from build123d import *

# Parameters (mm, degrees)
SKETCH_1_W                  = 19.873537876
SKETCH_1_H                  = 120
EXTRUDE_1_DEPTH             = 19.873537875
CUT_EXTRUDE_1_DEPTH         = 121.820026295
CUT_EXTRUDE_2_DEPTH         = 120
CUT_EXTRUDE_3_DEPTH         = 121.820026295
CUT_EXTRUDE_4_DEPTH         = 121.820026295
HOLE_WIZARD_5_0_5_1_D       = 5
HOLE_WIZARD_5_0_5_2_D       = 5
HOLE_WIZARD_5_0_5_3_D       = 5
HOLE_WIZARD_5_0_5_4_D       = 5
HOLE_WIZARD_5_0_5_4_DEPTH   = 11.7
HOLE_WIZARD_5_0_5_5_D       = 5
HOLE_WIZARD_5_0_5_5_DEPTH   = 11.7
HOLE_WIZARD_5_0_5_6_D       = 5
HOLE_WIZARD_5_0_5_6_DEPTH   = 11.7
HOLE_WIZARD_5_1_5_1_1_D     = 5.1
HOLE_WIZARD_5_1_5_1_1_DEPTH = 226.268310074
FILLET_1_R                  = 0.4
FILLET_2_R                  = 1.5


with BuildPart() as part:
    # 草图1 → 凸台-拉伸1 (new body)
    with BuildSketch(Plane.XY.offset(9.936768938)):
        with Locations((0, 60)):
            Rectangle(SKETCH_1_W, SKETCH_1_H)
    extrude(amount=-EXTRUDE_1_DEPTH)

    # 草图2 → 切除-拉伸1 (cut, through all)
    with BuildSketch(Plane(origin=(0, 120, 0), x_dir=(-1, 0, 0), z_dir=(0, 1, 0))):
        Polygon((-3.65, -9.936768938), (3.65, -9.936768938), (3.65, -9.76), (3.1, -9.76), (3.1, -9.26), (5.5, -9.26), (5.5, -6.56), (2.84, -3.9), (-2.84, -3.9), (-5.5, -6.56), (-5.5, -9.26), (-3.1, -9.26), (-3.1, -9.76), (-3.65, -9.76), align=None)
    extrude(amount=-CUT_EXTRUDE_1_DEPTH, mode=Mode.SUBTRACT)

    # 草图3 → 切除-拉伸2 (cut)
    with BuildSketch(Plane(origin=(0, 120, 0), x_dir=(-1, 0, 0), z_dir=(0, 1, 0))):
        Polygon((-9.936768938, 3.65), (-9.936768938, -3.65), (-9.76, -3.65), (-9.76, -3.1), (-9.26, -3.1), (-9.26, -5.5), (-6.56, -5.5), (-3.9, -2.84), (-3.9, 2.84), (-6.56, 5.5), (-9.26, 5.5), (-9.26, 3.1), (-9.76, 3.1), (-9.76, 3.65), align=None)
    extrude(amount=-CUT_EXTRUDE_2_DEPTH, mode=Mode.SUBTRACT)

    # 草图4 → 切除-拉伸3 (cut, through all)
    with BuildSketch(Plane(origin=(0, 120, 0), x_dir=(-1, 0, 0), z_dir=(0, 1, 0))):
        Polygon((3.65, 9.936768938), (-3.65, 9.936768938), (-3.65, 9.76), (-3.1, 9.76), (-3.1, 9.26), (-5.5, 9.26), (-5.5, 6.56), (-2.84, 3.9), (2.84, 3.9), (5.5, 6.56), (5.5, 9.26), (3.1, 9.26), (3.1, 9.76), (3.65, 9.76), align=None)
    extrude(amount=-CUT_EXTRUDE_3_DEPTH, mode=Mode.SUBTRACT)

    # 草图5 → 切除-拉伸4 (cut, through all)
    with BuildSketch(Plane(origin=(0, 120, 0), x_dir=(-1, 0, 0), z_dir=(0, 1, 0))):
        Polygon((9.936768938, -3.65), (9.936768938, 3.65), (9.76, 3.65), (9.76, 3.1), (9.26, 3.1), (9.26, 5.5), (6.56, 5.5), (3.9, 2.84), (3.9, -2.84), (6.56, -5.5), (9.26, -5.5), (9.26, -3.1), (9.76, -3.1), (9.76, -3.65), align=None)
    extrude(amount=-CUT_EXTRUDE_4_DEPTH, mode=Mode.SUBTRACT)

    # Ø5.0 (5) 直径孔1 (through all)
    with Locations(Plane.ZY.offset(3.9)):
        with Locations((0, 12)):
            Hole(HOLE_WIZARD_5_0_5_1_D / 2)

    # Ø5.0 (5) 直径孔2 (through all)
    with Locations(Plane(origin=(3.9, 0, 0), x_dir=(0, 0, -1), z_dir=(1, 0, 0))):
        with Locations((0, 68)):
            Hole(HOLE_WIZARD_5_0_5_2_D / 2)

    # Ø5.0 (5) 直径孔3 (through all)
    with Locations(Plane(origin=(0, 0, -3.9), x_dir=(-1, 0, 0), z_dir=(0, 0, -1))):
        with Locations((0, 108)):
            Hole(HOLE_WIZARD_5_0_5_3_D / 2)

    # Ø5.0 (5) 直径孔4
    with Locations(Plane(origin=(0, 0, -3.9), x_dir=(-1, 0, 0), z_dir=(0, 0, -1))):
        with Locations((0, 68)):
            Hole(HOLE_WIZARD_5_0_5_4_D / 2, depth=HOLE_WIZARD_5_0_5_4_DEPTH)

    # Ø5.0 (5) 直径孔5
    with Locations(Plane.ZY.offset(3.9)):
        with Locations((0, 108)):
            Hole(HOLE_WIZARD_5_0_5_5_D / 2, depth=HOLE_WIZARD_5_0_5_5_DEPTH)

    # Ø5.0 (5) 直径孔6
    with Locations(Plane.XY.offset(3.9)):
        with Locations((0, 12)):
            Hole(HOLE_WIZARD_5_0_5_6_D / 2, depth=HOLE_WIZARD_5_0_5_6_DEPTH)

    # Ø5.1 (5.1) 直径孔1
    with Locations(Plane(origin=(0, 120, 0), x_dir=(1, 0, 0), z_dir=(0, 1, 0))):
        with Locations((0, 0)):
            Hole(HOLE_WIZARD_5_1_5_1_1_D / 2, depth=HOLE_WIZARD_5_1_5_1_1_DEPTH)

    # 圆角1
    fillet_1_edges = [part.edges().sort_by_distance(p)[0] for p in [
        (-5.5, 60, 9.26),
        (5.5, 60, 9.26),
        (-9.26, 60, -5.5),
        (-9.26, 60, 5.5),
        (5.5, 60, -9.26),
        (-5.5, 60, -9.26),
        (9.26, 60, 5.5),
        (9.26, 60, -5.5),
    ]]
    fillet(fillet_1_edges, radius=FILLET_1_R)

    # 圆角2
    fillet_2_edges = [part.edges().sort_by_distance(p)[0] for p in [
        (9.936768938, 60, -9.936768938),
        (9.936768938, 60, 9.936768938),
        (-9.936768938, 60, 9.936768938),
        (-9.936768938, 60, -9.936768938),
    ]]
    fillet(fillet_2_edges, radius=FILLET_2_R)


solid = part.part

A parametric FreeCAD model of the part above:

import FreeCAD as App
import Part
import Sketcher
from FreeCAD import Vector


def edges_at(feature, points):
    """Names of the edges that pass closest to the given points."""
    edges = feature.Shape.Edges
    near = lambda p: min(range(len(edges)), key=lambda i: edges[i].distToShape(Part.Vertex(*p))[0])
    return sorted({f"Edge{near(p) + 1}" for p in points})


def add_polygon(sketch, points):
    """Adds a closed chain of lines whose ends are joined by coincident constraints."""
    first, n = sketch.GeometryCount, len(points)
    for a, b in zip(points, points[1:] + points[:1]):
        sketch.addGeometry(Part.LineSegment(App.Vector(*a, 0), App.Vector(*b, 0)), False)
    for i in range(n):
        sketch.addConstraint(Sketcher.Constraint("Coincident", first + i, 2, first + (i + 1) % n, 1))

doc = App.newDocument("Part")
body = doc.addObject("PartDesign::Body", "Body")

# Sketch on XY plane
sketch1 = body.newObject("Sketcher::SketchObject", "Sketch")
sketch1.AttachmentSupport = (doc.getObject("XY_Plane"), [""])
sketch1.MapMode = "FlatFace"
sketch1.AttachmentOffset = App.Placement(Vector(0, 0, 9.936769), App.Rotation())
add_polygon(sketch1, [(-10, 120), (-10, 0), (10, 0), (10, 120)])  # lines 0-3
sketch1.addConstraint([
    Sketcher.Constraint("Vertical", 0),
    Sketcher.Constraint("Horizontal", 1),
    Sketcher.Constraint("Vertical", 2),
    Sketcher.Constraint("Horizontal", 3),
    Sketcher.Constraint("Symmetric", 0, 2, 1, 2, -1, 1),
    Sketcher.Constraint("DistanceY", 0, 2, 0, 1, 120.0),
    Sketcher.Constraint("DistanceX", 1, 1, 1, 2, 19.873538),
])
pad1 = body.newObject("PartDesign::Pad", "Pad")
pad1.Profile = sketch1
pad1.Length = 19.873538
pad1.Reversed = True

# Sketch on XZ plane
sketch2 = body.newObject("Sketcher::SketchObject", "Sketch001")
sketch2.AttachmentSupport = (doc.getObject("XZ_Plane"), [""])
sketch2.MapMode = "FlatFace"
sketch2.AttachmentOffset = App.Placement(Vector(0, 0, -120), App.Rotation())
add_polygon(sketch2, [(3.65, -9.94), (-3.65, -9.94), (-3.65, -9.76), (-3.1, -9.76), (-3.1, -9.26), (-5.5, -9.26), (-5.5, -6.56), (-2.84, -3.9), (2.84, -3.9), (5.5, -6.56), (5.5, -9.26), (3.1, -9.26), (3.1, -9.76), (3.65, -9.76)])  # lines 0-13
sketch2.addConstraint([
    Sketcher.Constraint("Horizontal", 0),
    Sketcher.Constraint("Vertical", 1),
    Sketcher.Constraint("Horizontal", 2),
    Sketcher.Constraint("Vertical", 3),
    Sketcher.Constraint("Horizontal", 4),
    Sketcher.Constraint("Vertical", 5),
    Sketcher.Constraint("Horizontal", 7),
    Sketcher.Constraint("Vertical", 9),
    Sketcher.Constraint("Horizontal", 10),
    Sketcher.Constraint("Vertical", 11),
    Sketcher.Constraint("Horizontal", 12),
    Sketcher.Constraint("Vertical", 13),
    Sketcher.Constraint("Symmetric", 5, 2, 8, 2, -2),
    Sketcher.Constraint("Symmetric", 3, 2, 10, 2, -2),
    Sketcher.Constraint("Symmetric", 1, 2, 12, 2, -2),
    Sketcher.Constraint("Perpendicular", 6, 8),
    Sketcher.Constraint("Equal", 6, 8),
    Sketcher.Constraint("DistanceX", 0, 2, 0, 1, 7.3),
    Sketcher.Constraint("DistanceX", 4, 2, 4, 1, 2.4),
    Sketcher.Constraint("DistanceY", 3, 1, 3, 2, 0.5),
    Sketcher.Constraint("DistanceY", 5, 1, 5, 2, 2.7),
    Sketcher.Constraint("DistanceX", 2, 1, 2, 2, 0.55),
    Sketcher.Constraint("DistanceX", 7, 1, 7, 2, 5.68),
    Sketcher.Constraint("DistanceY", 6, 2, -1, 1, 3.9),
    Sketcher.Constraint("DistanceY", 1, 1, 1, 2, 0.176769),
])
pocket1 = body.newObject("PartDesign::Pocket", "Pocket")
pocket1.Profile = sketch2
pocket1.Type = "ThroughAll"
pocket1.Reversed = True

# Sketch on XZ plane
sketch3 = body.newObject("Sketcher::SketchObject", "Sketch002")
sketch3.AttachmentSupport = (doc.getObject("XZ_Plane"), [""])
sketch3.MapMode = "FlatFace"
sketch3.AttachmentOffset = App.Placement(Vector(0, 0, -120), App.Rotation())
add_polygon(sketch3, [(9.94, 3.65), (9.94, -3.65), (9.76, -3.65), (9.76, -3.1), (9.26, -3.1), (9.26, -5.5), (6.56, -5.5), (3.9, -2.84), (3.9, 2.84), (6.56, 5.5), (9.26, 5.5), (9.26, 3.1), (9.76, 3.1), (9.76, 3.65)])  # lines 0-13
sketch3.addConstraint([
    Sketcher.Constraint("Vertical", 0),
    Sketcher.Constraint("Horizontal", 1),
    Sketcher.Constraint("Vertical", 2),
    Sketcher.Constraint("Horizontal", 3),
    Sketcher.Constraint("Vertical", 4),
    Sketcher.Constraint("Horizontal", 5),
    Sketcher.Constraint("Vertical", 7),
    Sketcher.Constraint("Horizontal", 9),
    Sketcher.Constraint("Vertical", 10),
    Sketcher.Constraint("Horizontal", 11),
    Sketcher.Constraint("Vertical", 12),
    Sketcher.Constraint("Horizontal", 13),
    Sketcher.Constraint("Symmetric", 5, 2, 8, 2, -1),
    Sketcher.Constraint("Symmetric", 3, 2, 10, 2, -1),
    Sketcher.Constraint("Symmetric", 1, 2, 12, 2, -1),
    Sketcher.Constraint("Perpendicular", 6, 8),
    Sketcher.Constraint("Equal", 6, 8),
    Sketcher.Constraint("DistanceX", 3, 2, 3, 1, 0.5),
    Sketcher.Constraint("DistanceX", 5, 2, 5, 1, 2.7),
    Sketcher.Constraint("DistanceY", 0, 2, 0, 1, 7.3),
    Sketcher.Constraint("DistanceY", 4, 2, 4, 1, 2.4),
    Sketcher.Constraint("DistanceY", 2, 1, 2, 2, 0.55),
    Sketcher.Constraint("DistanceY", 7, 1, 7, 2, 5.68),
    Sketcher.Constraint("DistanceX", -1, 1, 6, 2, 3.9),
    Sketcher.Constraint("DistanceX", 1, 2, 1, 1, 0.176769),
])
pocket2 = body.newObject("PartDesign::Pocket", "Pocket001")
pocket2.Profile = sketch3
pocket2.Length = 120
pocket2.Reversed = True

# Sketch on XZ plane
sketch4 = body.newObject("Sketcher::SketchObject", "Sketch003")
sketch4.AttachmentSupport = (doc.getObject("XZ_Plane"), [""])
sketch4.MapMode = "FlatFace"
sketch4.AttachmentOffset = App.Placement(Vector(0, 0, -120), App.Rotation())
add_polygon(sketch4, [(-3.65, 9.94), (3.65, 9.94), (3.65, 9.76), (3.1, 9.76), (3.1, 9.26), (5.5, 9.26), (5.5, 6.56), (2.84, 3.9), (-2.84, 3.9), (-5.5, 6.56), (-5.5, 9.26), (-3.1, 9.26), (-3.1, 9.76), (-3.65, 9.76)])  # lines 0-13
sketch4.addConstraint([
    Sketcher.Constraint("Horizontal", 0),
    Sketcher.Constraint("Vertical", 1),
    Sketcher.Constraint("Horizontal", 2),
    Sketcher.Constraint("Vertical", 3),
    Sketcher.Constraint("Horizontal", 4),
    Sketcher.Constraint("Vertical", 5),
    Sketcher.Constraint("Horizontal", 7),
    Sketcher.Constraint("Vertical", 9),
    Sketcher.Constraint("Horizontal", 10),
    Sketcher.Constraint("Vertical", 11),
    Sketcher.Constraint("Horizontal", 12),
    Sketcher.Constraint("Vertical", 13),
    Sketcher.Constraint("Symmetric", 5, 2, 8, 2, -2),
    Sketcher.Constraint("Symmetric", 3, 2, 10, 2, -2),
    Sketcher.Constraint("Symmetric", 1, 2, 12, 2, -2),
    Sketcher.Constraint("Perpendicular", 6, 8),
    Sketcher.Constraint("Equal", 6, 8),
    Sketcher.Constraint("DistanceX", 0, 1, 0, 2, 7.3),
    Sketcher.Constraint("DistanceX", 4, 1, 4, 2, 2.4),
    Sketcher.Constraint("DistanceY", 3, 2, 3, 1, 0.5),
    Sketcher.Constraint("DistanceY", 5, 2, 5, 1, 2.7),
    Sketcher.Constraint("DistanceX", 2, 2, 2, 1, 0.55),
    Sketcher.Constraint("DistanceX", 7, 2, 7, 1, 5.68),
    Sketcher.Constraint("DistanceY", -1, 1, 6, 2, 3.9),
    Sketcher.Constraint("DistanceY", 1, 2, 1, 1, 0.176769),
])
pocket3 = body.newObject("PartDesign::Pocket", "Pocket002")
pocket3.Profile = sketch4
pocket3.Type = "ThroughAll"
pocket3.Reversed = True

# Sketch on XZ plane
sketch5 = body.newObject("Sketcher::SketchObject", "Sketch004")
sketch5.AttachmentSupport = (doc.getObject("XZ_Plane"), [""])
sketch5.MapMode = "FlatFace"
sketch5.AttachmentOffset = App.Placement(Vector(0, 0, -120), App.Rotation())
add_polygon(sketch5, [(-9.94, -3.65), (-9.94, 3.65), (-9.76, 3.65), (-9.76, 3.1), (-9.26, 3.1), (-9.26, 5.5), (-6.56, 5.5), (-3.9, 2.84), (-3.9, -2.84), (-6.56, -5.5), (-9.26, -5.5), (-9.26, -3.1), (-9.76, -3.1), (-9.76, -3.65)])  # lines 0-13
sketch5.addConstraint([
    Sketcher.Constraint("Vertical", 0),
    Sketcher.Constraint("Horizontal", 1),
    Sketcher.Constraint("Vertical", 2),
    Sketcher.Constraint("Horizontal", 3),
    Sketcher.Constraint("Vertical", 4),
    Sketcher.Constraint("Horizontal", 5),
    Sketcher.Constraint("Vertical", 7),
    Sketcher.Constraint("Horizontal", 9),
    Sketcher.Constraint("Vertical", 10),
    Sketcher.Constraint("Horizontal", 11),
    Sketcher.Constraint("Vertical", 12),
    Sketcher.Constraint("Horizontal", 13),
    Sketcher.Constraint("Symmetric", 5, 2, 8, 2, -1),
    Sketcher.Constraint("Symmetric", 3, 2, 10, 2, -1),
    Sketcher.Constraint("Symmetric", 1, 2, 12, 2, -1),
    Sketcher.Constraint("Perpendicular", 6, 8),
    Sketcher.Constraint("Equal", 6, 8),
    Sketcher.Constraint("DistanceX", 3, 1, 3, 2, 0.5),
    Sketcher.Constraint("DistanceX", 5, 1, 5, 2, 2.7),
    Sketcher.Constraint("DistanceY", 0, 1, 0, 2, 7.3),
    Sketcher.Constraint("DistanceY", 4, 1, 4, 2, 2.4),
    Sketcher.Constraint("DistanceY", 2, 2, 2, 1, 0.55),
    Sketcher.Constraint("DistanceY", 7, 2, 7, 1, 5.68),
    Sketcher.Constraint("DistanceX", 6, 2, -1, 1, 3.9),
    Sketcher.Constraint("DistanceX", 1, 1, 1, 2, 0.176769),
])
pocket4 = body.newObject("PartDesign::Pocket", "Pocket003")
pocket4.Profile = sketch5
pocket4.Type = "ThroughAll"
pocket4.Reversed = True

# Sketch on YZ plane
sketch6 = body.newObject("Sketcher::SketchObject", "Sketch005")
sketch6.AttachmentSupport = (doc.getObject("YZ_Plane"), [""])
sketch6.MapMode = "FlatFace"
sketch6.AttachmentOffset = App.Placement(Vector(0, 0, -3.9), App.Rotation())
sketch6.addGeometry(Part.Circle(Vector(12, 0, 0), Vector(0, 0, 1), 2.5), False)
sketch6.addConstraint([
    Sketcher.Constraint("PointOnObject", 0, 3, -1),
    Sketcher.Constraint("Diameter", 0, 5.0),
    Sketcher.Constraint("DistanceX", -1, 1, 0, 3, 12.0),
])
doc.recompute()
hole = body.newObject("PartDesign::Hole", "Hole")
hole.Profile = sketch6
hole.ThreadType = "None"
hole.Diameter = 5
hole.DepthType = "ThroughAll"
hole.Reversed = True

# Sketch on YZ plane
sketch7 = body.newObject("Sketcher::SketchObject", "Sketch006")
sketch7.AttachmentSupport = (doc.getObject("YZ_Plane"), [""])
sketch7.MapMode = "FlatFace"
sketch7.AttachmentOffset = App.Placement(Vector(0, 0, 3.9), App.Rotation())
sketch7.addGeometry(Part.Circle(Vector(68, 0, 0), Vector(0, 0, 1), 2.5), False)
sketch7.addConstraint([
    Sketcher.Constraint("PointOnObject", 0, 3, -1),
    Sketcher.Constraint("Diameter", 0, 5.0),
    Sketcher.Constraint("DistanceX", -1, 1, 0, 3, 68.0),
])
doc.recompute()
hole2 = body.newObject("PartDesign::Hole", "Hole001")
hole2.Profile = sketch7
hole2.ThreadType = "None"
hole2.Diameter = 5
hole2.DepthType = "ThroughAll"

# Sketch on XY plane
sketch8 = body.newObject("Sketcher::SketchObject", "Sketch007")
sketch8.AttachmentSupport = (doc.getObject("XY_Plane"), [""])
sketch8.MapMode = "FlatFace"
sketch8.AttachmentOffset = App.Placement(Vector(0, 0, -3.9), App.Rotation())
sketch8.addGeometry(Part.Circle(Vector(0, 108, 0), Vector(0, 0, 1), 2.5), False)
sketch8.addConstraint([
    Sketcher.Constraint("PointOnObject", 0, 3, -2),
    Sketcher.Constraint("Diameter", 0, 5.0),
    Sketcher.Constraint("DistanceY", -1, 1, 0, 3, 108.0),
])
doc.recompute()
hole3 = body.newObject("PartDesign::Hole", "Hole002")
hole3.Profile = sketch8
hole3.ThreadType = "None"
hole3.Diameter = 5
hole3.DepthType = "ThroughAll"
hole3.Reversed = True

# Sketch on XY plane
sketch9 = body.newObject("Sketcher::SketchObject", "Sketch008")
sketch9.AttachmentSupport = (doc.getObject("XY_Plane"), [""])
sketch9.MapMode = "FlatFace"
sketch9.AttachmentOffset = App.Placement(Vector(0, 0, -3.9), App.Rotation())
sketch9.addGeometry(Part.Circle(Vector(0, 68, 0), Vector(0, 0, 1), 2.5), False)
sketch9.addConstraint([
    Sketcher.Constraint("PointOnObject", 0, 3, -2),
    Sketcher.Constraint("Diameter", 0, 5.0),
    Sketcher.Constraint("DistanceY", -1, 1, 0, 3, 68.0),
])
doc.recompute()
hole4 = body.newObject("PartDesign::Hole", "Hole003")
hole4.Profile = sketch9
hole4.ThreadType = "None"
hole4.Diameter = 5
hole4.DepthType = "Dimension"
hole4.Depth = 11.7
hole4.DrillPoint = "Flat"
hole4.Reversed = True

# Sketch on YZ plane
sketch10 = body.newObject("Sketcher::SketchObject", "Sketch009")
sketch10.AttachmentSupport = (doc.getObject("YZ_Plane"), [""])
sketch10.MapMode = "FlatFace"
sketch10.AttachmentOffset = App.Placement(Vector(0, 0, -3.9), App.Rotation())
sketch10.addGeometry(Part.Circle(Vector(108, 0, 0), Vector(0, 0, 1), 2.5), False)
sketch10.addConstraint([
    Sketcher.Constraint("PointOnObject", 0, 3, -1),
    Sketcher.Constraint("Diameter", 0, 5.0),
    Sketcher.Constraint("DistanceX", -1, 1, 0, 3, 108.0),
])
doc.recompute()
hole5 = body.newObject("PartDesign::Hole", "Hole004")
hole5.Profile = sketch10
hole5.ThreadType = "None"
hole5.Diameter = 5
hole5.DepthType = "Dimension"
hole5.Depth = 11.7
hole5.DrillPoint = "Flat"
hole5.Reversed = True

# Sketch on XY plane
sketch11 = body.newObject("Sketcher::SketchObject", "Sketch010")
sketch11.AttachmentSupport = (doc.getObject("XY_Plane"), [""])
sketch11.MapMode = "FlatFace"
sketch11.AttachmentOffset = App.Placement(Vector(0, 0, 3.9), App.Rotation())
sketch11.addGeometry(Part.Circle(Vector(0, 12, 0), Vector(0, 0, 1), 2.5), False)
sketch11.addConstraint([
    Sketcher.Constraint("PointOnObject", 0, 3, -2),
    Sketcher.Constraint("Diameter", 0, 5.0),
    Sketcher.Constraint("DistanceY", -1, 1, 0, 3, 12.0),
])
doc.recompute()
hole6 = body.newObject("PartDesign::Hole", "Hole005")
hole6.Profile = sketch11
hole6.ThreadType = "None"
hole6.Diameter = 5
hole6.DepthType = "Dimension"
hole6.Depth = 11.7
hole6.DrillPoint = "Flat"

# Sketch on XZ plane
sketch12 = body.newObject("Sketcher::SketchObject", "Sketch011")
sketch12.AttachmentSupport = (doc.getObject("XZ_Plane"), [""])
sketch12.MapMode = "FlatFace"
sketch12.AttachmentOffset = App.Placement(Vector(0, 0, -120), App.Rotation())
sketch12.addGeometry(Part.Circle(Vector(0, 0, 0), Vector(0, 0, 1), 2.5), False)
sketch12.addConstraint([
    Sketcher.Constraint("Coincident", 0, 3, -1, 1),
    Sketcher.Constraint("Diameter", 0, 5.1),
])
doc.recompute()
hole7 = body.newObject("PartDesign::Hole", "Hole006")
hole7.Profile = sketch12
hole7.ThreadType = "None"
hole7.Diameter = 5.1
hole7.DepthType = "Dimension"
hole7.Depth = 226.26831
hole7.DrillPoint = "Flat"
hole7.Reversed = True
doc.recompute()

fillet = body.newObject("PartDesign::Fillet", "Fillet")
fillet.Base = (hole7, edges_at(hole7, [
    (-5.5, 60, 9.26),
    (5.5, 60, 9.26),
    (-9.26, 60, -5.5),
    (-9.26, 60, 5.5),
    (5.5, 60, -9.26),
    (-5.5, 60, -9.26),
    (9.26, 60, 5.5),
    (9.26, 60, -5.5),
]))
fillet.Radius = 0.4
doc.recompute()

fillet2 = body.newObject("PartDesign::Fillet", "Fillet001")
fillet2.Base = (fillet, edges_at(fillet, [
    (9.937, 60, -9.937),
    (9.937, 60, 9.937),
    (-9.937, 60, 9.937),
    (-9.937, 60, -9.937),
]))
fillet2.Radius = 1.5

doc.recompute()
